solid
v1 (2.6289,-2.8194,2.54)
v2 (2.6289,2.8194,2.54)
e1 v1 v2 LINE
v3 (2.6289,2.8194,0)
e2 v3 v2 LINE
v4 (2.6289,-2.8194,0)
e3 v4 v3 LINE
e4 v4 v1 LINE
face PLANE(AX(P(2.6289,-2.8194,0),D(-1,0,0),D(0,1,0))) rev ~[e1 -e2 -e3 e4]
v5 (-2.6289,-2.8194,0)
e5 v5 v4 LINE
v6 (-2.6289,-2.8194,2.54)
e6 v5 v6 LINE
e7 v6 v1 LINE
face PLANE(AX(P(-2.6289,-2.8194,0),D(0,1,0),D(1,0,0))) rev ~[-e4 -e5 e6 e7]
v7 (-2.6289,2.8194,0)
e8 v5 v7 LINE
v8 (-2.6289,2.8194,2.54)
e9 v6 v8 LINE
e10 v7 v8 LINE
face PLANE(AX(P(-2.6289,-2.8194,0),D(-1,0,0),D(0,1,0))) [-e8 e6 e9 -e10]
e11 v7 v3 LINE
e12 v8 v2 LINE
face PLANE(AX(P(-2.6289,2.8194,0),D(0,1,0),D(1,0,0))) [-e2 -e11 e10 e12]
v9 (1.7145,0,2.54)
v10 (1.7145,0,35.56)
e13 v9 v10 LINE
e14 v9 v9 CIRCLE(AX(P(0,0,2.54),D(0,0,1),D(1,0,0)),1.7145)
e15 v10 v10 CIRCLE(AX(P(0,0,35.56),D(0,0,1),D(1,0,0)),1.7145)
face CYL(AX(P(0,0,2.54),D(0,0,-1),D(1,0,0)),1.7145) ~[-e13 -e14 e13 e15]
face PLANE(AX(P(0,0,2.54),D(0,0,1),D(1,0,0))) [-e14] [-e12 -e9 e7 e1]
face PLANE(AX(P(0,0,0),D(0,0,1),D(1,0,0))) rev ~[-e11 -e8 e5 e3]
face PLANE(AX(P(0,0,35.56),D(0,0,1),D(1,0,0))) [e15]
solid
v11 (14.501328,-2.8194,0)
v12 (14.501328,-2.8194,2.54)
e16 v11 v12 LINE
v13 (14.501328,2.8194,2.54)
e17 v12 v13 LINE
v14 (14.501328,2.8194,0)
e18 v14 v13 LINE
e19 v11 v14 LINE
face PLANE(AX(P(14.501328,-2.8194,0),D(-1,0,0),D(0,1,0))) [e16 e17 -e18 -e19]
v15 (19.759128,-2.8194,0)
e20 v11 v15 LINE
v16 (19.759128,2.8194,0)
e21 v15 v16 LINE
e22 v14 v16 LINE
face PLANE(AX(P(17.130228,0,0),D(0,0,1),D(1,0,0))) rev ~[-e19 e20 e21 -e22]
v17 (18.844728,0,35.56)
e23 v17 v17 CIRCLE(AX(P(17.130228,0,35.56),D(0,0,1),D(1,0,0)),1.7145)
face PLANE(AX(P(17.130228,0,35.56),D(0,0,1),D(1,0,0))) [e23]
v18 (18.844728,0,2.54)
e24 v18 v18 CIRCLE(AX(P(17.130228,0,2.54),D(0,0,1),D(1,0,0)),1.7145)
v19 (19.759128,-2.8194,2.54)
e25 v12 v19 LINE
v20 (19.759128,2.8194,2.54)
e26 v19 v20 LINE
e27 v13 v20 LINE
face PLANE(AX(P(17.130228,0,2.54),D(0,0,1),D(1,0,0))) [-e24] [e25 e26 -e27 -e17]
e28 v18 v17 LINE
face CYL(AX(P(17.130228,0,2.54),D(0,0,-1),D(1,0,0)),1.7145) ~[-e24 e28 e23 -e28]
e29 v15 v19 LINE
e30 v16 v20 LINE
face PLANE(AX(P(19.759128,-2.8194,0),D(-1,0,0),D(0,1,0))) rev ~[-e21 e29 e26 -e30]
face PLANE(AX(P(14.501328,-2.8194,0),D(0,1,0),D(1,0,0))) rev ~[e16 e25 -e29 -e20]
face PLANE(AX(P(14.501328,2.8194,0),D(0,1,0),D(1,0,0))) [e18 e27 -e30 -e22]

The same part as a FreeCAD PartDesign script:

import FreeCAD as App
import Part
import Sketcher

V = App.Vector
Q = App.Units.Quantity

doc = App.newDocument("Part")
body = doc.addObject("PartDesign::Body", "Body")
body.AllowCompound = True

# Sketch on XY plane
sketch1 = doc.addObject("Sketcher::SketchObject", "Sketch")
body.addObject(sketch1)
sketch1.AttachmentSupport = (doc.XY_Plane, [""])
sketch1.MapMode = "FlatFace"
sketch1.addGeometry([
    Part.LineSegment(V(-3, 3, 0), V(-3, -3, 0)),  # 0
    Part.LineSegment(V(-3, -3, 0), V(3, -3, 0)),  # 1
    Part.LineSegment(V(3, -3, 0), V(3, 3, 0)),  # 2
    Part.LineSegment(V(3, 3, 0), V(-3, 3, 0)),  # 3
    Part.LineSegment(V(15, 3, 0), V(15, -3, 0)),  # 4
    Part.LineSegment(V(15, -3, 0), V(20, -3, 0)),  # 5
    Part.LineSegment(V(20, -3, 0), V(20, 3, 0)),  # 6
    Part.LineSegment(V(20, 3, 0), V(15, 3, 0)),  # 7
], False)
sketch1.addConstraint([
    Sketcher.Constraint("Coincident", 0, 2, 1, 1),
    Sketcher.Constraint("Coincident", 1, 2, 2, 1),
    Sketcher.Constraint("Coincident", 2, 2, 3, 1),
    Sketcher.Constraint("Coincident", 3, 2, 0, 1),
    Sketcher.Constraint("Coincident", 4, 2, 5, 1),
    Sketcher.Constraint("Coincident", 5, 2, 6, 1),
    Sketcher.Constraint("Coincident", 6, 2, 7, 1),
    Sketcher.Constraint("Coincident", 7, 2, 4, 1),
    Sketcher.Constraint("Vertical", 0),
    Sketcher.Constraint("Horizontal", 1),
    Sketcher.Constraint("Vertical", 2),
    Sketcher.Constraint("Horizontal", 3),
    Sketcher.Constraint("Vertical", 4),
    Sketcher.Constraint("Horizontal", 5),
    Sketcher.Constraint("Vertical", 6),
    Sketcher.Constraint("Horizontal", 7),
    Sketcher.Constraint("Symmetric", 0, 2, 2, 2, -1, 1),
    Sketcher.Constraint("Horizontal", 1, 2, 4, 2),
    Sketcher.Constraint("Horizontal", 3, 2, 6, 2),
    Sketcher.Constraint("Equal", 3, 5),
    Sketcher.Constraint("DistanceX", 1, 1, 1, 2, Q("0.207 in")),
    Sketcher.Constraint("DistanceY", 0, 2, 0, 1, Q("0.222 in")),
    Sketcher.Constraint("DistanceX", -1, 1, 4, 2, Q("14.501328 mm")),
])
pad1 = doc.addObject("PartDesign::Pad", "Pad")
body.addObject(pad1)
pad1.Profile = sketch1
pad1.Length = Q("0.1 in")

# Sketch on XY plane
sketch2 = doc.addObject("Sketcher::SketchObject", "Sketch001")
body.addObject(sketch2)
sketch2.AttachmentSupport = (doc.XY_Plane, [""])
sketch2.MapMode = "FlatFace"
sketch2.AttachmentOffset = App.Placement(V(0, 0, 0.1 * 25.4), App.Rotation())
sketch2.addGeometry(Part.Circle(V(0, 0, 0), V(0, 0, 1), 1.7), False)
sketch2.addConstraint([
    Sketcher.Constraint("Coincident", 0, 3, -1, 1),
    Sketcher.Constraint("Diameter", 0, Q("0.135 in")),
])
pad2 = doc.addObject("PartDesign::Pad", "Pad001")
body.addObject(pad2)
pad2.Profile = sketch2
pad2.Length = Q("1.3 in")

# Sketch on XY plane
sketch3 = doc.addObject("Sketcher::SketchObject", "Sketch002")
body.addObject(sketch3)
sketch3.AttachmentSupport = (doc.XY_Plane, [""])
sketch3.MapMode = "FlatFace"
sketch3.AttachmentOffset = App.Placement(V(0, 0, 0.1 * 25.4), App.Rotation())
sketch3.addGeometry(Part.Circle(V(17.1, 0, 0), V(0, 0, 1), 1.7), False)
sketch3.addConstraint([
    Sketcher.Constraint("PointOnObject", 0, 3, -1),
    Sketcher.Constraint("Diameter", 0, Q("0.135 in")),
    Sketcher.Constraint("DistanceX", -1, 1, 0, 3, Q("17.130228 mm")),
])
pad3 = doc.addObject("PartDesign::Pad", "Pad002")
body.addObject(pad3)
pad3.Profile = sketch3
pad3.Length = Q("1.3 in")

doc.recompute()
